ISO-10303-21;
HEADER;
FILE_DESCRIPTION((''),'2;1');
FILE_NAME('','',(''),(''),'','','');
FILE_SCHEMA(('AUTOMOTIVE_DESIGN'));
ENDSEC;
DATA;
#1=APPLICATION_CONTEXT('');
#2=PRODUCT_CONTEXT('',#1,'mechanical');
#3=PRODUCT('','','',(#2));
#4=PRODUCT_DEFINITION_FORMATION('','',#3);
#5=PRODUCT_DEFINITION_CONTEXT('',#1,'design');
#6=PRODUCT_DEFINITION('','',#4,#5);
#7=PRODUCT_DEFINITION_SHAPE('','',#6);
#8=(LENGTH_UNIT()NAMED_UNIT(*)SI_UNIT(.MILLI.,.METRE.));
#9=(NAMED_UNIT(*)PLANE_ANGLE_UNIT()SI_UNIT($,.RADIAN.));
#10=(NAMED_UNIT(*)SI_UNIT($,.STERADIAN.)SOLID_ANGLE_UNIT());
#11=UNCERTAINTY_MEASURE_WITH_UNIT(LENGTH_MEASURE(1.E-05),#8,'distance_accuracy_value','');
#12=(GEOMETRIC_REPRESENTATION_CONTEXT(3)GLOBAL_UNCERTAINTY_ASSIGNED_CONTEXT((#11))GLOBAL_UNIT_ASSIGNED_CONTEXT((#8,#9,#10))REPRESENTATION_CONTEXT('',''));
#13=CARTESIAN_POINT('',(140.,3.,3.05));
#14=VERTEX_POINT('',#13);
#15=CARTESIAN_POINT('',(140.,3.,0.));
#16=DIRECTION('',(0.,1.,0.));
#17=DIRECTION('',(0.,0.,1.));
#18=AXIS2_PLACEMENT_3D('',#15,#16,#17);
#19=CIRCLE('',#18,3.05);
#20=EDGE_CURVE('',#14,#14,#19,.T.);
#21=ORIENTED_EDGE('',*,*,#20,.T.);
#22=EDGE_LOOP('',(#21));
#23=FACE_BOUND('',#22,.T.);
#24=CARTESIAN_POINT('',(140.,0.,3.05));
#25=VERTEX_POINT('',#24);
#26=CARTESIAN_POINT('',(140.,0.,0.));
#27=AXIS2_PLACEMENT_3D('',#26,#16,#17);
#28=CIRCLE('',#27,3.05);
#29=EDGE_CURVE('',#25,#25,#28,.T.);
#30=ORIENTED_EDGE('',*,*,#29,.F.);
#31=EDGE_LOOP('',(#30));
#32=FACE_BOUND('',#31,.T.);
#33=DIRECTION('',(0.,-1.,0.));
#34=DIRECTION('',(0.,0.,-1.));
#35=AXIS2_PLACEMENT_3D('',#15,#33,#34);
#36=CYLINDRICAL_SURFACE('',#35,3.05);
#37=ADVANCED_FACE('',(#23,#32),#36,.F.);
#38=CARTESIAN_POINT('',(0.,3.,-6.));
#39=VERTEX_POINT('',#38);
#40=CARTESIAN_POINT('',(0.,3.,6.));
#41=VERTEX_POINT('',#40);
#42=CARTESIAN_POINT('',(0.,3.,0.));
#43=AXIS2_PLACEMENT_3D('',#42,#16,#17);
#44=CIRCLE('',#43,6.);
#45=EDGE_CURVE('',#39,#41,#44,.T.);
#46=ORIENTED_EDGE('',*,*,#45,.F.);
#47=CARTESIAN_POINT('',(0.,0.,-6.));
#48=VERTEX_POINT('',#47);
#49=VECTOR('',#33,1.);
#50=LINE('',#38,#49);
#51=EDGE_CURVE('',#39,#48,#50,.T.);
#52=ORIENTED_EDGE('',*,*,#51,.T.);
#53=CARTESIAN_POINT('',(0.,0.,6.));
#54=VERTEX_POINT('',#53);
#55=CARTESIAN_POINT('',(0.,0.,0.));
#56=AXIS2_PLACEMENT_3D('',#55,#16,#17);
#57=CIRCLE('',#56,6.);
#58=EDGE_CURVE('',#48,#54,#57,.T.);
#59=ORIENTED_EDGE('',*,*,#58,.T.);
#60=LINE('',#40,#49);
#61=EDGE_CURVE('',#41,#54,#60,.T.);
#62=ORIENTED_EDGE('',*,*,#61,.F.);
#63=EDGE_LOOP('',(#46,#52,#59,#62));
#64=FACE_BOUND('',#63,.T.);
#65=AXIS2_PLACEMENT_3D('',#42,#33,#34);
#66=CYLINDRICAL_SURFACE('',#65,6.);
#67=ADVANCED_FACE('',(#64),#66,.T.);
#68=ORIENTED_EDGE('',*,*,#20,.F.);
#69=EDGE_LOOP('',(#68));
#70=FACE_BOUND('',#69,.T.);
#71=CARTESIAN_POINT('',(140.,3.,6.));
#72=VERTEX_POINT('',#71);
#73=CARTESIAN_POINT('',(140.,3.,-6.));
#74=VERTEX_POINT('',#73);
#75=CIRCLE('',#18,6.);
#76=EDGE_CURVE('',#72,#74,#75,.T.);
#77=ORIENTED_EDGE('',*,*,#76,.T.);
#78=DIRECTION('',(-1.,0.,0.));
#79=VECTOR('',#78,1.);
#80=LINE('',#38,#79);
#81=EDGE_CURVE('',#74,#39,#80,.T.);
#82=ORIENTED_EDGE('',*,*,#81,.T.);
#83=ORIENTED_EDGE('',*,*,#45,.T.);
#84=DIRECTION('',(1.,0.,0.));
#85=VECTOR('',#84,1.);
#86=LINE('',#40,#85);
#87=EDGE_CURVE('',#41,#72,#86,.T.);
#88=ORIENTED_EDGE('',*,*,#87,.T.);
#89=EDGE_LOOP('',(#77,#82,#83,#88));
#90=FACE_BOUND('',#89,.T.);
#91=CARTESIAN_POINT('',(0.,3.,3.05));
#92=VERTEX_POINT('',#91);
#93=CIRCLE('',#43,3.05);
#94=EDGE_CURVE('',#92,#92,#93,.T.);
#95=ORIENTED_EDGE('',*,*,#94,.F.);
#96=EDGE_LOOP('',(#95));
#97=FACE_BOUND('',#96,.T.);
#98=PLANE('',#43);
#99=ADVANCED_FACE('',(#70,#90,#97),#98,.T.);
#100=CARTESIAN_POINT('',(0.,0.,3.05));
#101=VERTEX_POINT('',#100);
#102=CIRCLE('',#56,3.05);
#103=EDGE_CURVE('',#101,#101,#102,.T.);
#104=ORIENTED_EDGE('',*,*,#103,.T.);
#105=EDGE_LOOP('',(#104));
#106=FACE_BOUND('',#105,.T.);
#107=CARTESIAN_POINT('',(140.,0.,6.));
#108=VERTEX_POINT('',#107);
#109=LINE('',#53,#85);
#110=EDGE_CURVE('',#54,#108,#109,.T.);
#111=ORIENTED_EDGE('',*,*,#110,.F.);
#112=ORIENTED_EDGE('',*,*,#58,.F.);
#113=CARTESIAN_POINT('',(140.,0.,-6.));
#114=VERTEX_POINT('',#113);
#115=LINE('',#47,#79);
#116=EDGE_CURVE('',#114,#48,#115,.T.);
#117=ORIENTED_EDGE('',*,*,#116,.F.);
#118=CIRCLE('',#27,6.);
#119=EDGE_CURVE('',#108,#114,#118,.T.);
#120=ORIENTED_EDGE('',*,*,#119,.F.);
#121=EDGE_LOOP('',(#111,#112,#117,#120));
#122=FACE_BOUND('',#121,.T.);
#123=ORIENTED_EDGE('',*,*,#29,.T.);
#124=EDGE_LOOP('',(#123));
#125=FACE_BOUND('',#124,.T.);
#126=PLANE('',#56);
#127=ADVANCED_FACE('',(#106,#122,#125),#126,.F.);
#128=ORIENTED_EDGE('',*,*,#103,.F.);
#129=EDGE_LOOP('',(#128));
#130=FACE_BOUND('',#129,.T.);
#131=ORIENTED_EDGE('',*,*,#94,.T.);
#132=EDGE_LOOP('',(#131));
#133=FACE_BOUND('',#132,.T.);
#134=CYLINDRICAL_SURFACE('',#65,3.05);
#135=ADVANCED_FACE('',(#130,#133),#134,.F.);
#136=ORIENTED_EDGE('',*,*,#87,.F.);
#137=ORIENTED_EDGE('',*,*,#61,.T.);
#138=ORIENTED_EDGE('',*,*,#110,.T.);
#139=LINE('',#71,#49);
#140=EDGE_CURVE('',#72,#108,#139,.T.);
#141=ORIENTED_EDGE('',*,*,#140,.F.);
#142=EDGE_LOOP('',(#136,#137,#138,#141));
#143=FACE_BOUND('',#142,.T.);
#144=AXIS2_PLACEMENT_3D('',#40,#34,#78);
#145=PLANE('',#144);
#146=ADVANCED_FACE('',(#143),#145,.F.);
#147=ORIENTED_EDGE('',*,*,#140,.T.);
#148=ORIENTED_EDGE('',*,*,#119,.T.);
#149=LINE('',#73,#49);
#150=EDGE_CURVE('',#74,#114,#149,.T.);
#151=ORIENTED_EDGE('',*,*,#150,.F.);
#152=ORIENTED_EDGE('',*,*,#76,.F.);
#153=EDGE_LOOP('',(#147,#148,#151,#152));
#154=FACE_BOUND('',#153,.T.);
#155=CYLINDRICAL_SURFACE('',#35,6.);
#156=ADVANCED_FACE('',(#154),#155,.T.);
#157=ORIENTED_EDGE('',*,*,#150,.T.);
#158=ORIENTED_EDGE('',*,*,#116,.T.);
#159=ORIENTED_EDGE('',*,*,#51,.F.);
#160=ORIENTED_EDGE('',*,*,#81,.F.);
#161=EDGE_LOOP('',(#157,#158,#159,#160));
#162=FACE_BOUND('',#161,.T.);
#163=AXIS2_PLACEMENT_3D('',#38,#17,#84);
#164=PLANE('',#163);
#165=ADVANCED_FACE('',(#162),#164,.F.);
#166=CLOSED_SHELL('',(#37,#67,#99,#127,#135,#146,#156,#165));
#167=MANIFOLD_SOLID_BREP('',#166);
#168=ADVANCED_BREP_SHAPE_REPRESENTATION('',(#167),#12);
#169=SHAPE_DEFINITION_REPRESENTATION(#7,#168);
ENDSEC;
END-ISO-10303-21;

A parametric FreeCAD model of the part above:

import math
import FreeCAD as App
import Part
import Sketcher

V = App.Vector
Q = App.Units.Quantity

doc = App.newDocument("Part")
body = doc.addObject("PartDesign::Body", "Body")

# Sketch on XZ plane
sketch1 = doc.addObject("Sketcher::SketchObject", "Sketch")
body.addObject(sketch1)
sketch1.AttachmentSupport = (doc.XZ_Plane, [""])
sketch1.MapMode = "FlatFace"
sketch1.addGeometry(Part.LineSegment(V(140, -6, 0), V(0, -6, 0)), False)
sketch1.addGeometry(Part.ArcOfCircle(Part.Circle(V(0, 0, 0), V(0, 0, 1), 6), math.radians(90), math.radians(270)), False)
sketch1.addGeometry(Part.LineSegment(V(0, 6, 0), V(140, 6, 0)), False)
sketch1.addGeometry(Part.ArcOfCircle(Part.Circle(V(140, 0, 0), V(0, 0, 1), 6), math.radians(-90), math.radians(90)), False)
sketch1.addGeometry(Part.Circle(V(140, 0, 0), V(0, 0, 1), 3.05), False)
sketch1.addGeometry(Part.Circle(V(0, 0, 0), V(0, 0, 1), 3.05), False)
sketch1.addConstraint(Sketcher.Constraint("Tangent", 0, 2, 1, 2))
sketch1.addConstraint(Sketcher.Constraint("Tangent", 1, 1, 2, 1))
sketch1.addConstraint(Sketcher.Constraint("Tangent", 2, 2, 3, 2))
sketch1.addConstraint(Sketcher.Constraint("Tangent", 3, 1, 0, 1))
sketch1.addConstraint(Sketcher.Constraint("Horizontal", 0))
sketch1.addConstraint(Sketcher.Constraint("Horizontal", 2))
sketch1.addConstraint(Sketcher.Constraint("Coincident", 1, 3, -1, 1))
sketch1.addConstraint(Sketcher.Constraint("Coincident", 5, 3, -1, 1))
sketch1.addConstraint(Sketcher.Constraint("Coincident", 4, 3, 3, 3))
sketch1.addConstraint(Sketcher.Constraint("Equal", 4, 5))
sketch1.addConstraint(Sketcher.Constraint("Radius", 1, Q("6 mm")))
sketch1.addConstraint(Sketcher.Constraint("Diameter", 4, Q("6.1 mm")))
sketch1.addConstraint(Sketcher.Constraint("DistanceX", 0, 2, 0, 1, Q("140 mm")))
pad1 = doc.addObject("PartDesign::Pad", "Pad")
body.addObject(pad1)
pad1.Profile = sketch1
pad1.Length = 3
pad1.Reversed = True

doc.recompute()
